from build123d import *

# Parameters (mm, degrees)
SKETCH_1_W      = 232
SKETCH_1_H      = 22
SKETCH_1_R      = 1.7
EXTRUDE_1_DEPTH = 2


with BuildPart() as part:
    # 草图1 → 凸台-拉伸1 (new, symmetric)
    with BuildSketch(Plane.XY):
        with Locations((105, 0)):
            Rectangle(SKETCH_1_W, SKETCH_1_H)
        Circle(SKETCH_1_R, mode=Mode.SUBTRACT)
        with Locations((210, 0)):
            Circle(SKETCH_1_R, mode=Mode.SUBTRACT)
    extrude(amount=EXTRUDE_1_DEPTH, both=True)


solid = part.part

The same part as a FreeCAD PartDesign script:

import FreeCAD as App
import Part
import Sketcher
from FreeCAD import Vector
Q = App.Units.Quantity

doc = App.newDocument("Part")
body = doc.addObject("PartDesign::Body", "Body")

# Sketch on XY plane
sketch1 = body.newObject("Sketcher::SketchObject", "Sketch")
sketch1.AttachmentSupport = (doc.getObject("XY_Plane"), [""])
sketch1.MapMode = "FlatFace"
sketch1.addGeometry([
    Part.LineSegment(Vector(-11, 11, 0), Vector(-11, -11, 0)),  # 0
    Part.LineSegment(Vector(-11, -11, 0), Vector(221, -11, 0)),  # 1
    Part.LineSegment(Vector(221, -11, 0), Vector(221, 11, 0)),  # 2
    Part.LineSegment(Vector(221, 11, 0), Vector(-11, 11, 0)),  # 3
    Part.Circle(Vector(0, 0, 0), Vector(0, 0, 1), 1.7),  # 4
    Part.Circle(Vector(210, 0, 0), Vector(0, 0, 1), 1.7),  # 5
], False)
sketch1.addConstraint([
    Sketcher.Constraint("Coincident", 0, 2, 1, 1),
    Sketcher.Constraint("Coincident", 1, 2, 2, 1),
    Sketcher.Constraint("Coincident", 2, 2, 3, 1),
    Sketcher.Constraint("Coincident", 3, 2, 0, 1),
    Sketcher.Constraint("Vertical", 0),
    Sketcher.Constraint("Horizontal", 1),
    Sketcher.Constraint("Vertical", 2),
    Sketcher.Constraint("Horizontal", 3),
    Sketcher.Constraint("Coincident", 4, 3, -1, 1),
    Sketcher.Constraint("Equal", 4, 5),
    Sketcher.Constraint("PointOnObject", 5, 3, -1),
    Sketcher.Constraint("Diameter", 4, Q("3.4 mm")),
    Sketcher.Constraint("DistanceX", 1, 1, 1, 2, Q("232 mm")),
    Sketcher.Constraint("DistanceY", 0, 2, 0, 1, Q("22 mm")),
    Sketcher.Constraint("DistanceX", -1, 1, 5, 3, Q("210 mm")),
    Sketcher.Constraint("DistanceX", 0, 2, -1, 1, Q("11 mm")),
    Sketcher.Constraint("DistanceY", 0, 2, -1, 1, Q("11 mm")),
])
pad1 = body.newObject("PartDesign::Pad", "Pad")
pad1.Profile = sketch1
pad1.Length = 4
pad1.Midplane = True

doc.recompute()
